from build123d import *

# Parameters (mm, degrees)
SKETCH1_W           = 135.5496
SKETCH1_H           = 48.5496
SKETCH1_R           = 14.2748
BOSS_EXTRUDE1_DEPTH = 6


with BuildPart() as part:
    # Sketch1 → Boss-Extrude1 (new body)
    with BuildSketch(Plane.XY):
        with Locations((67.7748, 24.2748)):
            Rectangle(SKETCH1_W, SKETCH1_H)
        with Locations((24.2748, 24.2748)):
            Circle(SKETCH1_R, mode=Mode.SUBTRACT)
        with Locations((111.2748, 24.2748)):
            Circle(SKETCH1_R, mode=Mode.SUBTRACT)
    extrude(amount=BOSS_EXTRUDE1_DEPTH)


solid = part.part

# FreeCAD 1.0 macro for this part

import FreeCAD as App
import Part
import Sketcher
from FreeCAD import Vector


def add_polygon(sketch, points):
    """Adds a closed chain of lines whose ends are joined by coincident constraints."""
    first, n = sketch.GeometryCount, len(points)
    for a, b in zip(points, points[1:] + points[:1]):
        sketch.addGeometry(Part.LineSegment(App.Vector(*a, 0), App.Vector(*b, 0)), False)
    for i in range(n):
        sketch.addConstraint(Sketcher.Constraint("Coincident", first + i, 2, first + (i + 1) % n, 1))

doc = App.newDocument("Part")
body = doc.addObject("PartDesign::Body", "Body")

sketch1 = doc.addObject("Sketcher::SketchObject", "Sketch")
body.addObject(sketch1)
sketch1.AttachmentSupport = (doc.XY_Plane, [""])
sketch1.MapMode = "FlatFace"
add_polygon(sketch1, [(0, 48.5496), (0, 0), (135.5496, 0), (135.5496, 48.5496)])
sketch1.addGeometry(Part.Circle(Vector(24.2748, 24.2748, 0), Vector(0, 0, 1), 14.2748), False)
sketch1.addGeometry(Part.Circle(Vector(111.2748, 24.2748, 0), Vector(0, 0, 1), 14.2748), False)
sketch1.addConstraint(Sketcher.Constraint("Vertical", 0))
sketch1.addConstraint(Sketcher.Constraint("Horizontal", 1))
sketch1.addConstraint(Sketcher.Constraint("Vertical", 2))
sketch1.addConstraint(Sketcher.Constraint("Horizontal", 3))
sketch1.addConstraint(Sketcher.Constraint("Coincident", 0, 2, -1, 1))
sketch1.addConstraint(Sketcher.Constraint("Equal", 4, 5))
sketch1.addConstraint(Sketcher.Constraint("Horizontal", 4, 3, 5, 3))
sketch1.addConstraint(Sketcher.Constraint("DistanceX", 4, 3, 5, 3, 87.0))
sketch1.addConstraint(Sketcher.Constraint("Diameter", 4, 28.5496))
sketch1.addConstraint(Sketcher.Constraint("DistanceX", 1, 1, 1, 2, 135.5496))
sketch1.addConstraint(Sketcher.Constraint("DistanceY", 0, 2, 0, 1, 48.5496))
sketch1.addConstraint(Sketcher.Constraint("DistanceX", -1, 1, 4, 3, 24.2748))
sketch1.addConstraint(Sketcher.Constraint("DistanceY", -1, 1, 4, 3, 24.2748))
pad1 = doc.addObject("PartDesign::Pad", "Pad")
body.addObject(pad1)
pad1.Profile = sketch1
pad1.Length = 6

doc.recompute()
